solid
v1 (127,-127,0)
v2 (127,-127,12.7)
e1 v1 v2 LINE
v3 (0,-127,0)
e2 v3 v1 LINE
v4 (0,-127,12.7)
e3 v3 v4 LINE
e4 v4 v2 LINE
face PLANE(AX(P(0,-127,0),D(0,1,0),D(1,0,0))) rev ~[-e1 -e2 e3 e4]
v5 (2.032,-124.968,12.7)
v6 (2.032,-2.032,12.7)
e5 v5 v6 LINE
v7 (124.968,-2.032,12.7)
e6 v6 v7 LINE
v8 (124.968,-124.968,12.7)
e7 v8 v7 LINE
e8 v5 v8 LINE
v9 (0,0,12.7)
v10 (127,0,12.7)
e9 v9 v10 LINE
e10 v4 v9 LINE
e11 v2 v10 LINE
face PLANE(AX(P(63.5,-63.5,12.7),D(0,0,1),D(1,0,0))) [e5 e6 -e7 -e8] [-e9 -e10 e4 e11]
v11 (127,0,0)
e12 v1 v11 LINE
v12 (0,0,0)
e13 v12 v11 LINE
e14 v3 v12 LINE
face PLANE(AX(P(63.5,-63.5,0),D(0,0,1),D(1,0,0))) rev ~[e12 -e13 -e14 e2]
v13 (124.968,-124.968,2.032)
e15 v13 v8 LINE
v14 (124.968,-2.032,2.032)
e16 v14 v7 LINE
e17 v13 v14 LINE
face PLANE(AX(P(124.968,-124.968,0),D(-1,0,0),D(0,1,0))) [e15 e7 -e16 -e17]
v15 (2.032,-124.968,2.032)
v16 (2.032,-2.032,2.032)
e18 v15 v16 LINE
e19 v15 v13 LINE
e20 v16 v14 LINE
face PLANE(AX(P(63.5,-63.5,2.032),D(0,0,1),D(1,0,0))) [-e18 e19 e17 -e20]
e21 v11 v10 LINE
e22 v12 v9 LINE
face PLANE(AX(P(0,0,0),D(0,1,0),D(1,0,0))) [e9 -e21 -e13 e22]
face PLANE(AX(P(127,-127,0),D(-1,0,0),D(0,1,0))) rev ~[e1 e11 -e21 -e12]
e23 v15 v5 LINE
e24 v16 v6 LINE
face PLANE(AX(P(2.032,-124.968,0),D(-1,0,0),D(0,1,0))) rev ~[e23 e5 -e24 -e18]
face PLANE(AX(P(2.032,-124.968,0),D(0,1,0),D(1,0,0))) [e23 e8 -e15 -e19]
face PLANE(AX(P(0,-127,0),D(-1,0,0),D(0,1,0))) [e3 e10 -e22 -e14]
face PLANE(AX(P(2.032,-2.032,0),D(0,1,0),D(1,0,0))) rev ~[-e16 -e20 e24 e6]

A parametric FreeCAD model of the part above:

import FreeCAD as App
import Part
import Sketcher

V = App.Vector
Q = App.Units.Quantity

doc = App.newDocument("Part")
body = doc.addObject("PartDesign::Body", "Body")

# Sketch on XY plane
sketch1 = body.newObject("Sketcher::SketchObject", "Sketch")
sketch1.AttachmentSupport = (doc.getObject("XY_Plane"), [""])
sketch1.MapMode = "FlatFace"
sketch1.addGeometry(Part.LineSegment(V(2, -2, 0), V(2, -125, 0)), False)
sketch1.addGeometry(Part.LineSegment(V(2, -125, 0), V(125, -125, 0)), False)
sketch1.addGeometry(Part.LineSegment(V(125, -125, 0), V(125, -2, 0)), False)
sketch1.addGeometry(Part.LineSegment(V(125, -2, 0), V(2, -2, 0)), False)
sketch1.addConstraint(Sketcher.Constraint("Coincident", 0, 2, 1, 1))
sketch1.addConstraint(Sketcher.Constraint("Coincident", 1, 2, 2, 1))
sketch1.addConstraint(Sketcher.Constraint("Coincident", 2, 2, 3, 1))
sketch1.addConstraint(Sketcher.Constraint("Coincident", 3, 2, 0, 1))
sketch1.addConstraint(Sketcher.Constraint("Vertical", 0))
sketch1.addConstraint(Sketcher.Constraint("Horizontal", 1))
sketch1.addConstraint(Sketcher.Constraint("Vertical", 2))
sketch1.addConstraint(Sketcher.Constraint("Horizontal", 3))
sketch1.addConstraint(Sketcher.Constraint("Equal", 3, 0))
sketch1.addConstraint(Sketcher.Constraint("DistanceX", 1, 1, 1, 2, Q("4.84 in")))
sketch1.addConstraint(Sketcher.Constraint("DistanceX", -1, 1, 0, 2, Q("0.08 in")))
sketch1.addConstraint(Sketcher.Constraint("DistanceY", 0, 2, -1, 1, Q("4.92 in")))
pad1 = body.newObject("PartDesign::Pad", "Pad")
pad1.Profile = sketch1
pad1.Length = Q("0.08 in")

# Sketch on XY plane
sketch2 = body.newObject("Sketcher::SketchObject", "Sketch001")
sketch2.AttachmentSupport = (doc.getObject("XY_Plane"), [""])
sketch2.MapMode = "FlatFace"
sketch2.addGeometry(Part.LineSegment(V(0, 0, 0), V(0, -127, 0)), False)
sketch2.addGeometry(Part.LineSegment(V(0, -127, 0), V(127, -127, 0)), False)
sketch2.addGeometry(Part.LineSegment(V(127, -127, 0), V(127, 0, 0)), False)
sketch2.addGeometry(Part.LineSegment(V(127, 0, 0), V(0, 0, 0)), False)
sketch2.addGeometry(Part.LineSegment(V(125, -125, 0), V(2, -125, 0)), False)
sketch2.addGeometry(Part.LineSegment(V(2, -125, 0), V(2, -2, 0)), False)
sketch2.addGeometry(Part.LineSegment(V(2, -2, 0), V(125, -2, 0)), False)
sketch2.addGeometry(Part.LineSegment(V(125, -2, 0), V(125, -125, 0)), False)
sketch2.addConstraint(Sketcher.Constraint("Coincident", 0, 2, 1, 1))
sketch2.addConstraint(Sketcher.Constraint("Coincident", 1, 2, 2, 1))
sketch2.addConstraint(Sketcher.Constraint("Coincident", 2, 2, 3, 1))
sketch2.addConstraint(Sketcher.Constraint("Coincident", 3, 2, 0, 1))
sketch2.addConstraint(Sketcher.Constraint("Coincident", 4, 2, 5, 1))
sketch2.addConstraint(Sketcher.Constraint("Coincident", 5, 2, 6, 1))
sketch2.addConstraint(Sketcher.Constraint("Coincident", 6, 2, 7, 1))
sketch2.addConstraint(Sketcher.Constraint("Coincident", 7, 2, 4, 1))
sketch2.addConstraint(Sketcher.Constraint("Vertical", 0))
sketch2.addConstraint(Sketcher.Constraint("Horizontal", 1))
sketch2.addConstraint(Sketcher.Constraint("Vertical", 2))
sketch2.addConstraint(Sketcher.Constraint("Horizontal", 3))
sketch2.addConstraint(Sketcher.Constraint("Horizontal", 4))
sketch2.addConstraint(Sketcher.Constraint("Vertical", 5))
sketch2.addConstraint(Sketcher.Constraint("Horizontal", 6))
sketch2.addConstraint(Sketcher.Constraint("Vertical", 7))
sketch2.addConstraint(Sketcher.Constraint("Coincident", 3, 2, -1, 1))
sketch2.addConstraint(Sketcher.Constraint("Equal", 3, 0))
sketch2.addConstraint(Sketcher.Constraint("Equal", 6, 5))
sketch2.addConstraint(Sketcher.Constraint("DistanceX", 1, 1, 1, 2, Q("5 in")))
sketch2.addConstraint(Sketcher.Constraint("DistanceX", 4, 2, 4, 1, Q("4.84 in")))
sketch2.addConstraint(Sketcher.Constraint("DistanceX", -1, 1, 4, 2, Q("0.08 in")))
sketch2.addConstraint(Sketcher.Constraint("DistanceY", 4, 2, -1, 1, Q("4.92 in")))
pad2 = body.newObject("PartDesign::Pad", "Pad001")
pad2.Profile = sketch2
pad2.Length = Q("0.5 in")

doc.recompute()
